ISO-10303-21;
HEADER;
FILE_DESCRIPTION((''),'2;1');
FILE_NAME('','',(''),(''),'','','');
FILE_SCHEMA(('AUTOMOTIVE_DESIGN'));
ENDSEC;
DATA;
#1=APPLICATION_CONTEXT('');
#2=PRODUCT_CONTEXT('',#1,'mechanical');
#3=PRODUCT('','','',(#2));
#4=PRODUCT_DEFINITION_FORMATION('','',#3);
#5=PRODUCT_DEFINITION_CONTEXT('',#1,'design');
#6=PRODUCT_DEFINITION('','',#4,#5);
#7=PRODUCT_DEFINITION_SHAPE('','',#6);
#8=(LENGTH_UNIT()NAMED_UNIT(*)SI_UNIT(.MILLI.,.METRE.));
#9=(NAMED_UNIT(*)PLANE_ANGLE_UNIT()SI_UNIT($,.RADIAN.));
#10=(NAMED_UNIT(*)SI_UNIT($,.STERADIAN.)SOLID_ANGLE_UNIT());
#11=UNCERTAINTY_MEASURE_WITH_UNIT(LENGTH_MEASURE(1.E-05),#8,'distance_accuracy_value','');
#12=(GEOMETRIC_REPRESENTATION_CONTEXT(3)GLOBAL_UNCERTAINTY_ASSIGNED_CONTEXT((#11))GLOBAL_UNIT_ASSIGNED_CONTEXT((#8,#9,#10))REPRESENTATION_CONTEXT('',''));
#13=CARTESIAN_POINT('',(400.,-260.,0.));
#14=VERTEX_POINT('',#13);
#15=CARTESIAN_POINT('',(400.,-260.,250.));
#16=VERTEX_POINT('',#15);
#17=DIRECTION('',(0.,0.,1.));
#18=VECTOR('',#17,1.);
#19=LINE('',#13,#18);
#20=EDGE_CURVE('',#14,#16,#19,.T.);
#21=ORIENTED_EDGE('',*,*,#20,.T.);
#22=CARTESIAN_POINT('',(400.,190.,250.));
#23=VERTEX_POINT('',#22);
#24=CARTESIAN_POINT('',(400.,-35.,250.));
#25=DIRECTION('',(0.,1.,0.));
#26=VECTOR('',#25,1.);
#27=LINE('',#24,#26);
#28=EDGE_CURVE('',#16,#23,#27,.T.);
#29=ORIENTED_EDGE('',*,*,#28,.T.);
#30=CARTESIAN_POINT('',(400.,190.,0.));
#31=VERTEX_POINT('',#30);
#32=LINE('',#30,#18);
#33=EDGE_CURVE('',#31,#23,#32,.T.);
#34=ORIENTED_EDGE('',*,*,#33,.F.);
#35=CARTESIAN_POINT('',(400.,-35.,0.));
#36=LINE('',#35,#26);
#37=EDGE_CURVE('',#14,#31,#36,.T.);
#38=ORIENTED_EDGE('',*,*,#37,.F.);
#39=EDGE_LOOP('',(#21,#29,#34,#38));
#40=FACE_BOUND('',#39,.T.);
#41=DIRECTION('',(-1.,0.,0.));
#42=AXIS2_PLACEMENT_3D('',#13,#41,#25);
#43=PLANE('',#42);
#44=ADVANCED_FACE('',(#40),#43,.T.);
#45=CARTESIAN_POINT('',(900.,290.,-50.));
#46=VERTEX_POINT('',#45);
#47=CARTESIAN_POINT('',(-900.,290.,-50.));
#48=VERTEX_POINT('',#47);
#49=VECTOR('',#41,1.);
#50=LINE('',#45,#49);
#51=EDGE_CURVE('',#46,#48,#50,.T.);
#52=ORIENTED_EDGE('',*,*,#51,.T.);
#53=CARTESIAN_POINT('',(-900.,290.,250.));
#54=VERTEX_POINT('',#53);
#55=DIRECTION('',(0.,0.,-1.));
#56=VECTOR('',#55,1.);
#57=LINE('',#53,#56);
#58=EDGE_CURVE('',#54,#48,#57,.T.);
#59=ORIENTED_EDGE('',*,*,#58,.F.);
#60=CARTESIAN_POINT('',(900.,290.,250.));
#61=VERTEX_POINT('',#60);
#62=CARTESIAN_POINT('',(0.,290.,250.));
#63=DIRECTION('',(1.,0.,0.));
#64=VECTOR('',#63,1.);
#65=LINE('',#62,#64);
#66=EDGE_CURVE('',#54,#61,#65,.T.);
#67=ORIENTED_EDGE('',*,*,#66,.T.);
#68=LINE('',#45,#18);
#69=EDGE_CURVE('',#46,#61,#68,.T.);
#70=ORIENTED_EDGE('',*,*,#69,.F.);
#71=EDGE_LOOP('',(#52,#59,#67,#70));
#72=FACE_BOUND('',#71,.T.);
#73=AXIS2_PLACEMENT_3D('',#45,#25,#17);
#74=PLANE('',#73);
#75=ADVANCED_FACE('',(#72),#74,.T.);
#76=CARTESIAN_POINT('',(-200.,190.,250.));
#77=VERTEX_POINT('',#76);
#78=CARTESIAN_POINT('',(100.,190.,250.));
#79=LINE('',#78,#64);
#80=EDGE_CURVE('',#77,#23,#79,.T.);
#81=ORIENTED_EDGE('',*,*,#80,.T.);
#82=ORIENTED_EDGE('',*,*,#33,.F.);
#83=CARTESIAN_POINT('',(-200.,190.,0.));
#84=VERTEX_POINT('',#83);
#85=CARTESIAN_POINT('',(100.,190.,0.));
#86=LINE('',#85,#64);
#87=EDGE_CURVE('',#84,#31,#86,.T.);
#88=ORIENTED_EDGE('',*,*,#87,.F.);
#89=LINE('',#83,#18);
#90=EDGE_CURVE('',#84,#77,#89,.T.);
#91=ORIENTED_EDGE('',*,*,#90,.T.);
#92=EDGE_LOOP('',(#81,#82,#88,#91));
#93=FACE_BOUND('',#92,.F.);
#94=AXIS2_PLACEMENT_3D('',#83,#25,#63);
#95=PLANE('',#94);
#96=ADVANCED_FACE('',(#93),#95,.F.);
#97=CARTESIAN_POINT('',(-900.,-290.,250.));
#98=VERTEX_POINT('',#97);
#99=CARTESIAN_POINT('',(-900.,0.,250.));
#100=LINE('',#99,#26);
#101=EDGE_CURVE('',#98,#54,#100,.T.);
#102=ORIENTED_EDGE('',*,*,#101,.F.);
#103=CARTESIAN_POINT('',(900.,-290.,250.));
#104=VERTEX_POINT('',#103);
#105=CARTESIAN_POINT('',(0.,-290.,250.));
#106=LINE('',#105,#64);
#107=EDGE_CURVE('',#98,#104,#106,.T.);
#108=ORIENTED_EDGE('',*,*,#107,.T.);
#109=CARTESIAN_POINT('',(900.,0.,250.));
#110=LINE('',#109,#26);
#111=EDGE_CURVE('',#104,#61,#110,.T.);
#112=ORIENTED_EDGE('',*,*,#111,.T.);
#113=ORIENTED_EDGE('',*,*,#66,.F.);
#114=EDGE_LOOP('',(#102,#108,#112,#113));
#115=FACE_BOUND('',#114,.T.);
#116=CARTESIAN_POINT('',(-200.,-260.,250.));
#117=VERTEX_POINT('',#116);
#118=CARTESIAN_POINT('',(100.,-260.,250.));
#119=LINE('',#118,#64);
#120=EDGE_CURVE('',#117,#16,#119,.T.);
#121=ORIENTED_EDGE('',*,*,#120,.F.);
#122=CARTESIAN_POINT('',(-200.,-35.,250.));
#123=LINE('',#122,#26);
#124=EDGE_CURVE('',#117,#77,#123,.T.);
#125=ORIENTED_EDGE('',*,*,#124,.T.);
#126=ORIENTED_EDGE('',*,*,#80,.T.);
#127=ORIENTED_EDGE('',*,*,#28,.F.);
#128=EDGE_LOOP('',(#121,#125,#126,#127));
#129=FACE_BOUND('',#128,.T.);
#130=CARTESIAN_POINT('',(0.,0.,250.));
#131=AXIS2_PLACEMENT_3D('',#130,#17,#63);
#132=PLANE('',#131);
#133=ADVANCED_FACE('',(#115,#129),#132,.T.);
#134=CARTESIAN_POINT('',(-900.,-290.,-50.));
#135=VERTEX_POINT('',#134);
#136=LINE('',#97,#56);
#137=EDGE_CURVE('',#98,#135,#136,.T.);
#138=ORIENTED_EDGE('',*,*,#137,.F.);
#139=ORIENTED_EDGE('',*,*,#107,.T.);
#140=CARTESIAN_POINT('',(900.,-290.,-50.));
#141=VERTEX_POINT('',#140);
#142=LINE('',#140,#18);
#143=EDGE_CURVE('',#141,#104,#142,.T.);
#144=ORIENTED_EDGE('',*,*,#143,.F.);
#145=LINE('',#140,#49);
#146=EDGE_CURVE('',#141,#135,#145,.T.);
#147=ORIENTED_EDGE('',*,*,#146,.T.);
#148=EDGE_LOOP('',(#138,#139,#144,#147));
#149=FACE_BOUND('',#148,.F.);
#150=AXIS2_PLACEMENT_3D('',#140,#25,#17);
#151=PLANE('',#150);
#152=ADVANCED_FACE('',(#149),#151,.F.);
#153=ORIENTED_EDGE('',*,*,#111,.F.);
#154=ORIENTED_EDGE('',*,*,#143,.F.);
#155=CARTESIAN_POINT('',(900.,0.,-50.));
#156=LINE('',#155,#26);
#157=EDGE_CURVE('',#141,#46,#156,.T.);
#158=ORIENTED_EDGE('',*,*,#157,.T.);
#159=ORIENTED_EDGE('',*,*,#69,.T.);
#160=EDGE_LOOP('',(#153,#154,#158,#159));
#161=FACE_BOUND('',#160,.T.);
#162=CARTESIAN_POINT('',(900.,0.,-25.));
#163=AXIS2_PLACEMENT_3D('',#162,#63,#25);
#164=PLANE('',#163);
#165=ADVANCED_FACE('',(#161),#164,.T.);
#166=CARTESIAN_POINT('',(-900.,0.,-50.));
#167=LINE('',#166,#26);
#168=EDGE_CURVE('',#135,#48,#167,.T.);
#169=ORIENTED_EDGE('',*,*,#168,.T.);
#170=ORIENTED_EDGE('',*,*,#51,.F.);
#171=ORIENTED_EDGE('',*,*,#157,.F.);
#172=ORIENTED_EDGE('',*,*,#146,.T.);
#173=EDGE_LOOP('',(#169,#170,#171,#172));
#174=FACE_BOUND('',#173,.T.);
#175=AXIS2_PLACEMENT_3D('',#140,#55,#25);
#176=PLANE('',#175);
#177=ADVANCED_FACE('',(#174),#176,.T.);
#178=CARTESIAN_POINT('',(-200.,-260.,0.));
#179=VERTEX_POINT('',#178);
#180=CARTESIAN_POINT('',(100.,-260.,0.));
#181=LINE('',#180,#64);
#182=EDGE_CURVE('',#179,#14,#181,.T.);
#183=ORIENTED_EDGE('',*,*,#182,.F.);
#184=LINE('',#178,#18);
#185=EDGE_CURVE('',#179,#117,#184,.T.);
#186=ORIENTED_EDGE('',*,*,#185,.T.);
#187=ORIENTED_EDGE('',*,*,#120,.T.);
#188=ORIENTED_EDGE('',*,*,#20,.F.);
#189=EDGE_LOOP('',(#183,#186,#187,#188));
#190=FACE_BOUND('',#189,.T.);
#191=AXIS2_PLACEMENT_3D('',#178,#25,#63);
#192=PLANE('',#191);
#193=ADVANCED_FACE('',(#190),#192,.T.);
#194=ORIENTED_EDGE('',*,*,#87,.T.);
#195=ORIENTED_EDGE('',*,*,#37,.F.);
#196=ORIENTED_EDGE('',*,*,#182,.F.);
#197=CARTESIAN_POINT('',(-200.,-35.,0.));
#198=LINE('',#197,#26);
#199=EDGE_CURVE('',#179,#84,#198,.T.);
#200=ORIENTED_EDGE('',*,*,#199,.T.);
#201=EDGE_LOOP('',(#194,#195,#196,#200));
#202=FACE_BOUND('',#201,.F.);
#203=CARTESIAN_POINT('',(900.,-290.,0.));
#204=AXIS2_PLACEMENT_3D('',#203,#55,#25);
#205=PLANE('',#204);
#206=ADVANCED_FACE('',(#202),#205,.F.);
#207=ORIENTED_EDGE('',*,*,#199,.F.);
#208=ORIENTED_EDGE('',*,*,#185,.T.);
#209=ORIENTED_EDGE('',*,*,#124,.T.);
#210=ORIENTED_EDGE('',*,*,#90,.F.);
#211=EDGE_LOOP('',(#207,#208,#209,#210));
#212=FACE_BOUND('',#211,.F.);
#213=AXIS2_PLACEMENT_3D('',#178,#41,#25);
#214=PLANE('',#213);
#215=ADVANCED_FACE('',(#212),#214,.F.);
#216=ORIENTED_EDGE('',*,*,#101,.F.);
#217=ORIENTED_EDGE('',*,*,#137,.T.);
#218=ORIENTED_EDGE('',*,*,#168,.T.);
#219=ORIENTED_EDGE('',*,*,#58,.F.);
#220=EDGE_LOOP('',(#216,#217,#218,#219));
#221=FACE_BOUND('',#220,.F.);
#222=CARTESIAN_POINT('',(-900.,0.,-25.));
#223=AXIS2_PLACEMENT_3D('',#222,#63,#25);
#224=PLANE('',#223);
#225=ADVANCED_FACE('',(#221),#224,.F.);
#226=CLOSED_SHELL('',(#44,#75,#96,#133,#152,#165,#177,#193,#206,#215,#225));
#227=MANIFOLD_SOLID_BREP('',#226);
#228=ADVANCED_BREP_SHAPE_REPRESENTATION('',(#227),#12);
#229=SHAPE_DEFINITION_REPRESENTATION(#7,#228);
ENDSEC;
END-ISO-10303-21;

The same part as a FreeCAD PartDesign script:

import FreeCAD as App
import Part
import Sketcher
Q = App.Units.Quantity

doc = App.newDocument("Part")
body = doc.addObject("PartDesign::Body", "Body")

sketch1 = body.newObject("Sketcher::SketchObject", "Sketch")
sketch1.AttachmentSupport = (doc.getObject("XY_Plane"), [""])
sketch1.MapMode = "FlatFace"
sketch1.addGeometry(Part.LineSegment(App.Vector(-900, 290, 0), App.Vector(-900, -290, 0)), False)
sketch1.addGeometry(Part.LineSegment(App.Vector(-900, -290, 0), App.Vector(900, -290, 0)), False)
sketch1.addGeometry(Part.LineSegment(App.Vector(900, -290, 0), App.Vector(900, 290, 0)), False)
sketch1.addGeometry(Part.LineSegment(App.Vector(900, 290, 0), App.Vector(-900, 290, 0)), False)
sketch1.addGeometry(Part.LineSegment(App.Vector(400, -260, 0), App.Vector(-200, -260, 0)), False)
sketch1.addGeometry(Part.LineSegment(App.Vector(-200, -260, 0), App.Vector(-200, 190, 0)), False)
sketch1.addGeometry(Part.LineSegment(App.Vector(-200, 190, 0), App.Vector(400, 190, 0)), False)
sketch1.addGeometry(Part.LineSegment(App.Vector(400, 190, 0), App.Vector(400, -260, 0)), False)
sketch1.addConstraint(Sketcher.Constraint("Coincident", 0, 2, 1, 1))
sketch1.addConstraint(Sketcher.Constraint("Coincident", 1, 2, 2, 1))
sketch1.addConstraint(Sketcher.Constraint("Coincident", 2, 2, 3, 1))
sketch1.addConstraint(Sketcher.Constraint("Coincident", 3, 2, 0, 1))
sketch1.addConstraint(Sketcher.Constraint("Coincident", 4, 2, 5, 1))
sketch1.addConstraint(Sketcher.Constraint("Coincident", 5, 2, 6, 1))
sketch1.addConstraint(Sketcher.Constraint("Coincident", 6, 2, 7, 1))
sketch1.addConstraint(Sketcher.Constraint("Coincident", 7, 2, 4, 1))
sketch1.addConstraint(Sketcher.Constraint("Vertical", 0))
sketch1.addConstraint(Sketcher.Constraint("Horizontal", 1))
sketch1.addConstraint(Sketcher.Constraint("Vertical", 2))
sketch1.addConstraint(Sketcher.Constraint("Horizontal", 3))
sketch1.addConstraint(Sketcher.Constraint("Horizontal", 4))
sketch1.addConstraint(Sketcher.Constraint("Vertical", 5))
sketch1.addConstraint(Sketcher.Constraint("Horizontal", 6))
sketch1.addConstraint(Sketcher.Constraint("Vertical", 7))
sketch1.addConstraint(Sketcher.Constraint("Symmetric", 0, 2, 2, 2, -1, 1))
sketch1.addConstraint(Sketcher.Constraint("DistanceX", 1, 1, 1, 2, Q("1800 mm")))
sketch1.addConstraint(Sketcher.Constraint("DistanceX", 4, 2, 4, 1, Q("600 mm")))
sketch1.addConstraint(Sketcher.Constraint("DistanceY", 0, 2, 0, 1, Q("580 mm")))
sketch1.addConstraint(Sketcher.Constraint("DistanceY", 5, 1, 5, 2, Q("450 mm")))
sketch1.addConstraint(Sketcher.Constraint("DistanceX", 4, 2, -1, 1, Q("200 mm")))
sketch1.addConstraint(Sketcher.Constraint("DistanceY", 4, 2, -1, 1, Q("260 mm")))
pad1 = body.newObject("PartDesign::Pad", "Pad")
pad1.Profile = sketch1
pad1.Length = 250

sketch2 = body.newObject("Sketcher::SketchObject", "Sketch001")
sketch2.AttachmentSupport = (doc.getObject("YZ_Plane"), [""])
sketch2.MapMode = "FlatFace"
sketch2.AttachmentOffset = App.Placement(App.Vector(0, 0, 900), App.Rotation())
sketch2.addGeometry(Part.LineSegment(App.Vector(-290, 0, 0), App.Vector(-290, -50, 0)), False)
sketch2.addGeometry(Part.LineSegment(App.Vector(-290, -50, 0), App.Vector(290, -50, 0)), False)
sketch2.addGeometry(Part.LineSegment(App.Vector(290, -50, 0), App.Vector(290, 0, 0)), False)
sketch2.addGeometry(Part.LineSegment(App.Vector(290, 0, 0), App.Vector(-290, 0, 0)), False)
sketch2.addConstraint(Sketcher.Constraint("Coincident", 0, 2, 1, 1))
sketch2.addConstraint(Sketcher.Constraint("Coincident", 1, 2, 2, 1))
sketch2.addConstraint(Sketcher.Constraint("Coincident", 2, 2, 3, 1))
sketch2.addConstraint(Sketcher.Constraint("Coincident", 3, 2, 0, 1))
sketch2.addConstraint(Sketcher.Constraint("Vertical", 0))
sketch2.addConstraint(Sketcher.Constraint("Horizontal", 1))
sketch2.addConstraint(Sketcher.Constraint("Vertical", 2))
sketch2.addConstraint(Sketcher.Constraint("Horizontal", 3))
sketch2.addConstraint(Sketcher.Constraint("Symmetric", 2, 2, 3, 2, -1, 1))
sketch2.addConstraint(Sketcher.Constraint("DistanceX", 1, 1, 1, 2, Q("580 mm")))
sketch2.addConstraint(Sketcher.Constraint("DistanceY", 0, 2, 0, 1, Q("50 mm")))
pad2 = body.newObject("PartDesign::Pad", "Pad001")
pad2.Profile = sketch2
pad2.Length = 1800
pad2.Reversed = True

doc.recompute()
